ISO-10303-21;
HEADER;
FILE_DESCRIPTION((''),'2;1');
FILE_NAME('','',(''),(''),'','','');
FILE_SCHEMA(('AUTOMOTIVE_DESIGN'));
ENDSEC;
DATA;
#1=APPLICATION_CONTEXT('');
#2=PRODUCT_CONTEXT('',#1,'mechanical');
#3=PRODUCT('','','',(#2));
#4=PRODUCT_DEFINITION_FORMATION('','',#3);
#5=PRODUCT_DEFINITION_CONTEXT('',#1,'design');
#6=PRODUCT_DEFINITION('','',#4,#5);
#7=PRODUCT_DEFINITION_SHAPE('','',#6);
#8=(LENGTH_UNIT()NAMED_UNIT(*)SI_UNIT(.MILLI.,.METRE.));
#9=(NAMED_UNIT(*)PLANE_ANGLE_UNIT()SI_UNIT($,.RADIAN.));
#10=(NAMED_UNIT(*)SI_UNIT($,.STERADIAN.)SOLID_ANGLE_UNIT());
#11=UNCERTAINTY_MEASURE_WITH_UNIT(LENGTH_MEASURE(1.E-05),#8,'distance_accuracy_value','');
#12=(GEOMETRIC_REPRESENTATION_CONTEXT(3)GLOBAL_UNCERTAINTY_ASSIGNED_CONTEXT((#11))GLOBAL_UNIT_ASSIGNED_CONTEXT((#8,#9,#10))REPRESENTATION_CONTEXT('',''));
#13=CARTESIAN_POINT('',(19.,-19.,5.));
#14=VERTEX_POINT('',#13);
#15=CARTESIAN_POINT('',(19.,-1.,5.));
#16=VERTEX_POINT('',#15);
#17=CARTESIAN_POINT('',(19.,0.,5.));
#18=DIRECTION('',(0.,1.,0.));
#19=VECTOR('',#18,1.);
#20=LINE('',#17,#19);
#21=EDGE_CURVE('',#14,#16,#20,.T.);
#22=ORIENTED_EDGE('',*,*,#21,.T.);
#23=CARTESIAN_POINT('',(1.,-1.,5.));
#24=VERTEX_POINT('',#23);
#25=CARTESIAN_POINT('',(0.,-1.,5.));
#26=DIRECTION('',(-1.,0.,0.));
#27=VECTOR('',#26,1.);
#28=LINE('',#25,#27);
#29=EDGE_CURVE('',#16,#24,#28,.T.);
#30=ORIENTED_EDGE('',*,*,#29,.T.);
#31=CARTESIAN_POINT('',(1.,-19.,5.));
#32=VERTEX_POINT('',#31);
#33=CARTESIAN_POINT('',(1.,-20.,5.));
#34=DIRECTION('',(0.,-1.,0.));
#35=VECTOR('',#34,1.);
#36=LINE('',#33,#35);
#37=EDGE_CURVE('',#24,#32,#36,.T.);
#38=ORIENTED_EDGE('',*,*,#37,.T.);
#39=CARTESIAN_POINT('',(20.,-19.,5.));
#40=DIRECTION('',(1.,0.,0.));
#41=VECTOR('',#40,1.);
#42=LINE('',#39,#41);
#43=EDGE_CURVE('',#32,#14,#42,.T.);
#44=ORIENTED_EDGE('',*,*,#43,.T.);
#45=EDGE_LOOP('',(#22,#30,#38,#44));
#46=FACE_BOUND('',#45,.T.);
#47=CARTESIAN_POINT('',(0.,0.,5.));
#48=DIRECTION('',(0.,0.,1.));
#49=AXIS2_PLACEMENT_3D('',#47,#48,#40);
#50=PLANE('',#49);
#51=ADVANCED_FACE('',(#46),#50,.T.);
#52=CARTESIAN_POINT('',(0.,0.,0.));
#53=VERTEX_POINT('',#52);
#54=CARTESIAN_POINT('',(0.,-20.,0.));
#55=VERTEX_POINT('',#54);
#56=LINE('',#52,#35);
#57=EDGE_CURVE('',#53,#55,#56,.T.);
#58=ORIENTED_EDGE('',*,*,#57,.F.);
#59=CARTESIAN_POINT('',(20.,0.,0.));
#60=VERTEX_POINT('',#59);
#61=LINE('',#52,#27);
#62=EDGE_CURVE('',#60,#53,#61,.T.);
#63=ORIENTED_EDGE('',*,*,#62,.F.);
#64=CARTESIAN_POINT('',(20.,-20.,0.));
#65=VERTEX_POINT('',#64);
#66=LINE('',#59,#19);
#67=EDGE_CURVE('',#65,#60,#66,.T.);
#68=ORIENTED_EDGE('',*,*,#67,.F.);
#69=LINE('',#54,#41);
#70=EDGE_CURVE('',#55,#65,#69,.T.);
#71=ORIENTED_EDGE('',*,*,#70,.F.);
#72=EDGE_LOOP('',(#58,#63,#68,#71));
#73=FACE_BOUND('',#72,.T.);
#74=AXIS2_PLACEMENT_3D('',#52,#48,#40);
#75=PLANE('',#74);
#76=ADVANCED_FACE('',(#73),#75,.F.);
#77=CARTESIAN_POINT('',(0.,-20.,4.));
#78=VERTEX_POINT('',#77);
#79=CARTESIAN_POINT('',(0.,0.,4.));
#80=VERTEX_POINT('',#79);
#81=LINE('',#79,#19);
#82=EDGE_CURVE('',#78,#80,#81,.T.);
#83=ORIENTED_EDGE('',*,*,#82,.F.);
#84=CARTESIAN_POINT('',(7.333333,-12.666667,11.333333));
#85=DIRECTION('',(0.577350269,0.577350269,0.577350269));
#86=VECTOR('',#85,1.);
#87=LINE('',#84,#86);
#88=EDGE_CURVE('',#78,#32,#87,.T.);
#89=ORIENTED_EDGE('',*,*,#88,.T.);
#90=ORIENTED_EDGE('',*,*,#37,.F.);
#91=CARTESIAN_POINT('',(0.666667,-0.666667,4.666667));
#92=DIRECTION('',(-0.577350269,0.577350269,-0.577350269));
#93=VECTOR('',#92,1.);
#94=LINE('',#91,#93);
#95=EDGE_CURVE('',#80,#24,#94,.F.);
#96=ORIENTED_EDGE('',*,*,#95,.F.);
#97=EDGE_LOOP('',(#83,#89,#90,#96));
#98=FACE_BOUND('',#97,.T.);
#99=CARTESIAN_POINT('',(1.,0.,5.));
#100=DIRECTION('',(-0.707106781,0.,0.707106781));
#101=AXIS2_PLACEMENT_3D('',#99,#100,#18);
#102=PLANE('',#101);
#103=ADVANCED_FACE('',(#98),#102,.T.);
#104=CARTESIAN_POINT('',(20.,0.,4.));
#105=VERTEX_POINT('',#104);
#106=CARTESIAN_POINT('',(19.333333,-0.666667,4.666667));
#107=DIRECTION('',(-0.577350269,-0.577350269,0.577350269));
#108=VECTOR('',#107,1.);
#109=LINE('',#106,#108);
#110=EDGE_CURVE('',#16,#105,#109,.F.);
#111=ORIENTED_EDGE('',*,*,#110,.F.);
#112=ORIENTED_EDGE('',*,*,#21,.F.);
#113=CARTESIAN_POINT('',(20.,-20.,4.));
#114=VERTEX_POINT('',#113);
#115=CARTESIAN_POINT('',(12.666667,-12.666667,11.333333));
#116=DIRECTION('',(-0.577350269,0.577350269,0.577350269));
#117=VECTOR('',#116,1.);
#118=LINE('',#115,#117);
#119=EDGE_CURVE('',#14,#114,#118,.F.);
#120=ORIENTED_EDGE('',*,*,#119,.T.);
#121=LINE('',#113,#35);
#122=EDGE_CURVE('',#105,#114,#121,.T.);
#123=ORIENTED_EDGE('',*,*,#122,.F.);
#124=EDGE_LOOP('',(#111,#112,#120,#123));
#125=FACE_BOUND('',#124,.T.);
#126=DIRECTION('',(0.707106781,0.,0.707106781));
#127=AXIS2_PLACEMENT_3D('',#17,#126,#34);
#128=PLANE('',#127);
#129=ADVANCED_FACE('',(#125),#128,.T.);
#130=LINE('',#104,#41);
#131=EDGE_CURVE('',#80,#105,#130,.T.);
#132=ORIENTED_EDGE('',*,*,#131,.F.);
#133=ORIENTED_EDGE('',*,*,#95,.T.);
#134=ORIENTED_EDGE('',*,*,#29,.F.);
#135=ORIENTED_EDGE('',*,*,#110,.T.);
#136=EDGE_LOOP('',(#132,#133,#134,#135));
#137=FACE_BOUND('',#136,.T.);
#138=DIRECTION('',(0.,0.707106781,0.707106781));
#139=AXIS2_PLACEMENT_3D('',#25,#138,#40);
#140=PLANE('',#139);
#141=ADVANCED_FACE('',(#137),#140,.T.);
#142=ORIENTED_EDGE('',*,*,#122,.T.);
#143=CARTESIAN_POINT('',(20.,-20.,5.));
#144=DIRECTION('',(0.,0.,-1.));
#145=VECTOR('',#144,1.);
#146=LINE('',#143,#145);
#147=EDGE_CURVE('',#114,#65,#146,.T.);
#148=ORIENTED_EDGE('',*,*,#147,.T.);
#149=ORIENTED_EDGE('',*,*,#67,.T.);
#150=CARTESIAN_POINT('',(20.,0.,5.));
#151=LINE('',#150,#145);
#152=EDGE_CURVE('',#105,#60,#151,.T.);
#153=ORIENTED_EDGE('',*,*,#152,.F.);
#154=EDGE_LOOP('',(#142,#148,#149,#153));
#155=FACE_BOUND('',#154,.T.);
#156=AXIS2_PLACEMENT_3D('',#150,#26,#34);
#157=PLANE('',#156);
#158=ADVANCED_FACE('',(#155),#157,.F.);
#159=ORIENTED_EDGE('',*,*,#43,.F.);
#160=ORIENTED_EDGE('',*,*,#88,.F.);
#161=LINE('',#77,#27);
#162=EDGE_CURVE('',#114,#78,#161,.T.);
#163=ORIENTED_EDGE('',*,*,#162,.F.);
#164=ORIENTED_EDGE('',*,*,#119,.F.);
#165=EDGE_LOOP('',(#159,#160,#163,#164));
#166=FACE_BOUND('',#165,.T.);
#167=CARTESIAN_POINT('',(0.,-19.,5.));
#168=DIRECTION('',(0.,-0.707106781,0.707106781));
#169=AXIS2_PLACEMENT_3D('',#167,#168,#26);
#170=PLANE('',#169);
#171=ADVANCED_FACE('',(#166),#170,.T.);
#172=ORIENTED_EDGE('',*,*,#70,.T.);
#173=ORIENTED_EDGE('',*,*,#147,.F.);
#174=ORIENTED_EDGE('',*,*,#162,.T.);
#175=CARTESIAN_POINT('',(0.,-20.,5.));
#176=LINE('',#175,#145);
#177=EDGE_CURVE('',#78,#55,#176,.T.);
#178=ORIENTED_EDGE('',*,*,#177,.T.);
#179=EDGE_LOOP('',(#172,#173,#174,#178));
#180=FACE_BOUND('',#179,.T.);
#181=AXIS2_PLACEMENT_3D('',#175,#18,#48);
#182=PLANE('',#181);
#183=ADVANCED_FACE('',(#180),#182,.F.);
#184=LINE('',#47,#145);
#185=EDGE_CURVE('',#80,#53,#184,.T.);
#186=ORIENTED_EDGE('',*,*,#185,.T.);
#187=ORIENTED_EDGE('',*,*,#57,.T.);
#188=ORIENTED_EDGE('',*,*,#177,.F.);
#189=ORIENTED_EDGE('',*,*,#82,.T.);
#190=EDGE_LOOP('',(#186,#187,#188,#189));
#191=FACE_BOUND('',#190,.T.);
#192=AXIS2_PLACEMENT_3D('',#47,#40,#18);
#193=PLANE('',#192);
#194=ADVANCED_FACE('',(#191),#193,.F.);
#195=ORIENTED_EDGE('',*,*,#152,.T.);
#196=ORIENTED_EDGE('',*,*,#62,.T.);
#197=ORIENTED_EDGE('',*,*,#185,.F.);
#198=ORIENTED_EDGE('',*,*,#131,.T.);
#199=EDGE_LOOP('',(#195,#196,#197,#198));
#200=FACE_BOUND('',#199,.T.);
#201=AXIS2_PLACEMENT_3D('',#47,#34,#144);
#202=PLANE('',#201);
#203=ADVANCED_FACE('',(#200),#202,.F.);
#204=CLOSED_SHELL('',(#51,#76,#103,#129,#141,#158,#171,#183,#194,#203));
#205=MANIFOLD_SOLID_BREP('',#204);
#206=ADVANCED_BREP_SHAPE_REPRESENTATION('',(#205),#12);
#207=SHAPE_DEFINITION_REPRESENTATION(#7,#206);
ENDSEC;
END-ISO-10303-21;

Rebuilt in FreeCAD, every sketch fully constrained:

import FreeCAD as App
import Part
import Sketcher
from FreeCAD import Vector
Q = App.Units.Quantity


def edges_at(feature, points):
    """Names of the edges that pass closest to the given points."""
    edges = feature.Shape.Edges
    near = lambda p: min(range(len(edges)), key=lambda i: edges[i].distToShape(Part.Vertex(*p))[0])
    return sorted({f"Edge{near(p) + 1}" for p in points})


def add_polygon(sketch, points):
    """Adds a closed chain of lines whose ends are joined by coincident constraints."""
    first, n = sketch.GeometryCount, len(points)
    for a, b in zip(points, points[1:] + points[:1]):
        sketch.addGeometry(Part.LineSegment(App.Vector(*a, 0), App.Vector(*b, 0)), False)
    for i in range(n):
        sketch.addConstraint(Sketcher.Constraint("Coincident", first + i, 2, first + (i + 1) % n, 1))

doc = App.newDocument("Part")
params = doc.addObject("Spreadsheet::Sheet", "Params")
for row, (alias, value) in enumerate([
    ("sketch1_width", "20 mm"),
    ("pad1_length", "5 mm"),
    ("chamfer_size", "1 mm"),
], start=1):
    params.set(f"A{row}", alias)
    params.set(f"B{row}", "=" + value)
    params.setAlias(f"B{row}", alias)

body = doc.addObject("PartDesign::Body", "Body")

# Sketch on XY plane
sketch1 = body.newObject("Sketcher::SketchObject", "Sketch")
sketch1.AttachmentSupport = (doc.getObject("XY_Plane"), [""])
sketch1.MapMode = "FlatFace"
add_polygon(sketch1, [(0, 0), (0, -20), (20, -20), (20, 0)])  # lines 0-3
sketch1.addConstraint([
    Sketcher.Constraint("Vertical", 0),
    Sketcher.Constraint("Horizontal", 1),
    Sketcher.Constraint("Vertical", 2),
    Sketcher.Constraint("Horizontal", 3),
    Sketcher.Constraint("Coincident", 3, 2, -1, 1),
    Sketcher.Constraint("Equal", 3, 0),
    Sketcher.Constraint("DistanceX", 1, 1, 1, 2, Q("20 mm")),
])
sketch1.setExpression("Constraints[10]", "Params.sketch1_width")
pad1 = body.newObject("PartDesign::Pad", "Pad")
pad1.Profile = sketch1
pad1.setExpression("Length", "Params.pad1_length")
doc.recompute()

chamfer = body.newObject("PartDesign::Chamfer", "Chamfer")
chamfer.Base = (pad1, edges_at(pad1, [
    (20, -10, 5),
    (10, 0, 5),
    (0, -10, 5),
    (10, -20, 5),
]))
chamfer.setExpression("Size", "Params.chamfer_size")

doc.recompute()
